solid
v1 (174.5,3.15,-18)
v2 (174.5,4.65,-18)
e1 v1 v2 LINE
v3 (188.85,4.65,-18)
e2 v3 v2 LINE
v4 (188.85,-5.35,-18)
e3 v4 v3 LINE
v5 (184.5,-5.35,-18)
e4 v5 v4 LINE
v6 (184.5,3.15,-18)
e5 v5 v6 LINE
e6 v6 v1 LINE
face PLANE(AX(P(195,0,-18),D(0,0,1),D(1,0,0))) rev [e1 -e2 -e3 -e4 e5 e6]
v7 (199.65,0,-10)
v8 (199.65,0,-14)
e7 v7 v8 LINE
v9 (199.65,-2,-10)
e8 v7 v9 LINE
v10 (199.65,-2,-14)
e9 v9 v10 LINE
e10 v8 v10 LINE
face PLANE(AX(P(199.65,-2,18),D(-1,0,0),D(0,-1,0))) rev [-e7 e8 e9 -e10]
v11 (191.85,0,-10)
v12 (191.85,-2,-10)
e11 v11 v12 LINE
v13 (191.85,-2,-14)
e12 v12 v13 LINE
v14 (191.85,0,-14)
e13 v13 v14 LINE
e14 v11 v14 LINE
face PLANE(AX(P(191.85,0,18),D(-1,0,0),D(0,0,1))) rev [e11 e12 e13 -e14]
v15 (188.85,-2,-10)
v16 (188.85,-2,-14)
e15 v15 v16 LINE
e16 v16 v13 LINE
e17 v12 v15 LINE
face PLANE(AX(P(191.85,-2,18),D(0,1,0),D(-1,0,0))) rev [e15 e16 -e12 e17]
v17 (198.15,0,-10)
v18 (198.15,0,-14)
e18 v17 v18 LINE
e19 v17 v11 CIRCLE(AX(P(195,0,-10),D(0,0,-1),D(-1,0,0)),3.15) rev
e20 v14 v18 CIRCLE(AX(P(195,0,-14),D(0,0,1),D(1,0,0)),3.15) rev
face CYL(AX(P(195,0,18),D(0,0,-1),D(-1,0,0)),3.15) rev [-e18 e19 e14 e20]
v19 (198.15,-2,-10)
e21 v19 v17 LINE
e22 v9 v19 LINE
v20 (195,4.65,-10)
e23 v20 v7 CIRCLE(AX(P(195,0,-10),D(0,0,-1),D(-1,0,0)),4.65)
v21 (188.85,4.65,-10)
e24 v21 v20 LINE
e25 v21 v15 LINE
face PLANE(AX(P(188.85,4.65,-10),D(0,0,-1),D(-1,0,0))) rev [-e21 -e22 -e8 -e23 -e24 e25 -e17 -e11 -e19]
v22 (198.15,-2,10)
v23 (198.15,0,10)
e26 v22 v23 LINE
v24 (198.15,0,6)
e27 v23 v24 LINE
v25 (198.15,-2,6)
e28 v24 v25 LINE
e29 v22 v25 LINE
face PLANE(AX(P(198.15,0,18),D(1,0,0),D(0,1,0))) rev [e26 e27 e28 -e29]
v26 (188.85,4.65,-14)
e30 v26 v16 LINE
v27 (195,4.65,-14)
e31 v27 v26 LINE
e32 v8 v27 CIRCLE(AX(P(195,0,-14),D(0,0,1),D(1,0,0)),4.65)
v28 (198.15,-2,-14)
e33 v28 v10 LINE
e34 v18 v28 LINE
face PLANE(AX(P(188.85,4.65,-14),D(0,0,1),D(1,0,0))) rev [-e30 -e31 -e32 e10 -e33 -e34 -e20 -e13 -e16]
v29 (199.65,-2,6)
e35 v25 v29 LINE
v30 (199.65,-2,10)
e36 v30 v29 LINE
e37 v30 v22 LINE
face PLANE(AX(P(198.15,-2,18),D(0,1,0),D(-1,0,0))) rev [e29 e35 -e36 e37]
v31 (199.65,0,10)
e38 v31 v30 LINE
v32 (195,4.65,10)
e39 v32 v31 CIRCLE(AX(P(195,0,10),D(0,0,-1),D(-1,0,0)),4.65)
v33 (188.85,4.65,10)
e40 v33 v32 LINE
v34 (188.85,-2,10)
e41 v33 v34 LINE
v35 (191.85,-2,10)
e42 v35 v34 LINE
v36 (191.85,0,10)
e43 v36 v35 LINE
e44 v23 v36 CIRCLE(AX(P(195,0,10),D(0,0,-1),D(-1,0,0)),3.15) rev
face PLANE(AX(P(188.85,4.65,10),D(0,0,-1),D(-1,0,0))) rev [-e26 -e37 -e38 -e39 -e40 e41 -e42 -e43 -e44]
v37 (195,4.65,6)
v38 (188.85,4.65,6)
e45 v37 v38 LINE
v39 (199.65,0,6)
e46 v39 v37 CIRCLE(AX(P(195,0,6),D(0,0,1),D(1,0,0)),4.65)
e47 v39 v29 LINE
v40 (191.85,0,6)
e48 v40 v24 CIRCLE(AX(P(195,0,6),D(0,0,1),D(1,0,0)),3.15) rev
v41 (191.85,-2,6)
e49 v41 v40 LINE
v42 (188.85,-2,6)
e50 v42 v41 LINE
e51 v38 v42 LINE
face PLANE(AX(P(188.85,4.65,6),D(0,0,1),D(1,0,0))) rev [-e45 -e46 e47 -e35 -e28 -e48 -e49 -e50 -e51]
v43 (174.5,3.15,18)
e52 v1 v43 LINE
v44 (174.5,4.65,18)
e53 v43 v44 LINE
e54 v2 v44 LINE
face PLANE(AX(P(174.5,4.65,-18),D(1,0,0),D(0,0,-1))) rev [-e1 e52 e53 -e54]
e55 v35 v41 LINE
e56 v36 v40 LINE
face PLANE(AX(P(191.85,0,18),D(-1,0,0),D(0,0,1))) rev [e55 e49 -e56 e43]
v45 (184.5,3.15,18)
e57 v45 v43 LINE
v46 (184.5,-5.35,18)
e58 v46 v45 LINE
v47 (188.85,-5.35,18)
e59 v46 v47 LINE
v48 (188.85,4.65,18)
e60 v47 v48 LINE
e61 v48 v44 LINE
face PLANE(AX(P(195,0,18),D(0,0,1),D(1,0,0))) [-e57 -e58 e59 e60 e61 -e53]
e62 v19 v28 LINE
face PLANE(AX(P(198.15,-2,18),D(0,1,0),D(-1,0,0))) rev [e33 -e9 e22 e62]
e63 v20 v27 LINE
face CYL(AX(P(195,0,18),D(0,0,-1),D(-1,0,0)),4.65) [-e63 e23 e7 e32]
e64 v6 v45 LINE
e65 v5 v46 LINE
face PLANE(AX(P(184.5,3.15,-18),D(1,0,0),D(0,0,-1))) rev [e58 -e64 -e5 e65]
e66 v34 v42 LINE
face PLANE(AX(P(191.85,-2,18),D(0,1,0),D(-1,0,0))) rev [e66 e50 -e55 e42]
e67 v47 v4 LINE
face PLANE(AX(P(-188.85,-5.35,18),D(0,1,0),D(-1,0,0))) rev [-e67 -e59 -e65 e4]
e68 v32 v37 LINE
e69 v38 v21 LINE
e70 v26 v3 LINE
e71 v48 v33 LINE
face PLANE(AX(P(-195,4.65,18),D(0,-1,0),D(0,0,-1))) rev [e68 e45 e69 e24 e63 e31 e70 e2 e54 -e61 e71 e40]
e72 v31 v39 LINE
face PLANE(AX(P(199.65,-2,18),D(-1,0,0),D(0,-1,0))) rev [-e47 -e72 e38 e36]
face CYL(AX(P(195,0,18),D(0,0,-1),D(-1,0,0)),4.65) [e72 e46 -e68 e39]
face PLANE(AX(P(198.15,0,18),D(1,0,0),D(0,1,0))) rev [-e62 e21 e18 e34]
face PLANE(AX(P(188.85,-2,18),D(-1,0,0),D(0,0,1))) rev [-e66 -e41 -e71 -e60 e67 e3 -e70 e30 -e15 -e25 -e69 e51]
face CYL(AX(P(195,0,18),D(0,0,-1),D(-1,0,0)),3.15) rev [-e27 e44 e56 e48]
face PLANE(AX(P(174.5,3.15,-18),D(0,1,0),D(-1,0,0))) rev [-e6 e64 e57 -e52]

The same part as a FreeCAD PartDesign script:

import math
import FreeCAD as App
import Part
import Sketcher

V = App.Vector
Q = App.Units.Quantity

doc = App.newDocument("Part")
body = doc.addObject("PartDesign::Body", "Body")

sketch1 = doc.addObject("Sketcher::SketchObject", "Sketch")
body.addObject(sketch1)
sketch1.AttachmentSupport = (doc.XY_Plane, [""])
sketch1.MapMode = "FlatFace"
sketch1.addGeometry([
    Part.LineSegment(V(-198.15, -2, 0), V(-198.15, 0, 0)),
    Part.ArcOfCircle(Part.Circle(V(-195, 0, 0), V(0, 0, 1), 3.15), math.radians(0), math.radians(180)),
    Part.LineSegment(V(-191.85, 0, 0), V(-191.85, -2, 0)),
    Part.LineSegment(V(-191.85, -2, 0), V(-188.85, -2, 0)),
    Part.LineSegment(V(-188.85, -2, 0), V(-188.85, -5.35, 0)),
    Part.LineSegment(V(-188.85, -5.35, 0), V(188.85, -5.35, 0)),
    Part.LineSegment(V(188.85, -5.35, 0), V(188.85, -2, 0)),
    Part.LineSegment(V(188.85, -2, 0), V(191.85, -2, 0)),
    Part.LineSegment(V(191.85, -2, 0), V(191.85, 0, 0)),
    Part.ArcOfCircle(Part.Circle(V(195, 0, 0), V(0, 0, 1), 3.15), math.radians(0), math.radians(180)),
    Part.LineSegment(V(198.15, 0, 0), V(198.15, -2, 0)),
    Part.LineSegment(V(198.15, -2, 0), V(199.65, -2, 0)),
    Part.LineSegment(V(199.65, -2, 0), V(199.65, 0, 0)),
    Part.ArcOfCircle(Part.Circle(V(195, 0, 0), V(0, 0, 1), 4.65), math.radians(0), math.radians(90)),
    Part.LineSegment(V(195, 4.65, 0), V(-195, 4.65, 0)),
    Part.ArcOfCircle(Part.Circle(V(-195, 0, 0), V(0, 0, 1), 4.65), math.radians(90), math.radians(180)),
    Part.LineSegment(V(-199.65, 0, 0), V(-199.65, -2, 0)),
    Part.LineSegment(V(-199.65, -2, 0), V(-198.15, -2, 0)),
], False)
sketch1.addConstraint([
    Sketcher.Constraint("Tangent", 0, 2, 1, 2),
    Sketcher.Constraint("Tangent", 1, 1, 2, 1),
    Sketcher.Constraint("Coincident", 2, 2, 3, 1),
    Sketcher.Constraint("Coincident", 3, 2, 4, 1),
    Sketcher.Constraint("Coincident", 4, 2, 5, 1),
    Sketcher.Constraint("Coincident", 5, 2, 6, 1),
    Sketcher.Constraint("Coincident", 6, 2, 7, 1),
    Sketcher.Constraint("Coincident", 7, 2, 8, 1),
    Sketcher.Constraint("Tangent", 8, 2, 9, 2),
    Sketcher.Constraint("Tangent", 9, 1, 10, 1),
    Sketcher.Constraint("Coincident", 10, 2, 11, 1),
    Sketcher.Constraint("Coincident", 11, 2, 12, 1),
    Sketcher.Constraint("Tangent", 12, 2, 13, 1),
    Sketcher.Constraint("Tangent", 13, 2, 14, 1),
    Sketcher.Constraint("Tangent", 14, 2, 15, 1),
    Sketcher.Constraint("Tangent", 15, 2, 16, 1),
    Sketcher.Constraint("Coincident", 16, 2, 17, 1),
    Sketcher.Constraint("Coincident", 17, 2, 0, 1),
    Sketcher.Constraint("Vertical", 0),
    Sketcher.Constraint("Vertical", 2),
    Sketcher.Constraint("Horizontal", 3),
    Sketcher.Constraint("Vertical", 4),
    Sketcher.Constraint("Horizontal", 5),
    Sketcher.Constraint("Vertical", 6),
    Sketcher.Constraint("Horizontal", 7),
    Sketcher.Constraint("Vertical", 8),
    Sketcher.Constraint("Vertical", 10),
    Sketcher.Constraint("Horizontal", 11),
    Sketcher.Constraint("Vertical", 12),
    Sketcher.Constraint("Horizontal", 14),
    Sketcher.Constraint("Vertical", 16),
    Sketcher.Constraint("Horizontal", 17),
    Sketcher.Constraint("Coincident", 13, 3, 9, 3),
    Sketcher.Constraint("Coincident", 15, 3, 1, 3),
    Sketcher.Constraint("Equal", 1, 9),
    Sketcher.Constraint("Equal", 13, 15),
    Sketcher.Constraint("Symmetric", 1, 3, 9, 3, -1, 1),
    Sketcher.Constraint("Symmetric", 3, 2, 6, 2, -2),
    Sketcher.Constraint("Horizontal", 7, 2, 10, 2),
    Sketcher.Constraint("Horizontal", 11, 2, 16, 2),
    Sketcher.Constraint("DistanceX", 3, 1, 3, 2, Q("3 mm")),
    Sketcher.Constraint("DistanceX", 14, 2, 14, 1, Q("390 mm")),
    Sketcher.Constraint("DistanceY", 0, 1, 0, 2, Q("2 mm")),
    Sketcher.Constraint("Radius", 1, Q("3.15 mm")),
    Sketcher.Constraint("Radius", 13, Q("4.65 mm")),
    Sketcher.Constraint("DistanceY", 4, 2, 4, 1, Q("3.35 mm")),
])
pad1 = doc.addObject("PartDesign::Pad", "Pad")
body.addObject(pad1)
pad1.Profile = sketch1
pad1.Length = 36
pad1.Midplane = True

sketch2 = doc.addObject("Sketcher::SketchObject", "Sketch001")
body.addObject(sketch2)
sketch2.AttachmentSupport = (doc.XZ_Plane, [""])
sketch2.MapMode = "FlatFace"
sketch2.AttachmentOffset = App.Placement(V(0, 0, 5.35), App.Rotation())
sketch2.addGeometry([
    Part.LineSegment(V(-199.65, 18, 0), V(-199.65, 14, 0)),
    Part.LineSegment(V(-199.65, 14, 0), V(-188.85, 14, 0)),
    Part.LineSegment(V(-188.85, 14, 0), V(-188.85, 18, 0)),
    Part.LineSegment(V(-188.85, 18, 0), V(-199.65, 18, 0)),
    Part.LineSegment(V(-199.65, 10, 0), V(-199.65, -6, 0)),
    Part.LineSegment(V(-199.65, -6, 0), V(-188.85, -6, 0)),
    Part.LineSegment(V(-188.85, -6, 0), V(-188.85, 10, 0)),
    Part.LineSegment(V(-188.85, 10, 0), V(-199.65, 10, 0)),
    Part.LineSegment(V(-199.65, -10, 0), V(-199.65, -18, 0)),
    Part.LineSegment(V(-199.65, -18, 0), V(-188.85, -18, 0)),
    Part.LineSegment(V(-188.85, -18, 0), V(-188.85, -10, 0)),
    Part.LineSegment(V(-188.85, -10, 0), V(-199.65, -10, 0)),
    Part.LineSegment(V(188.85, 18, 0), V(188.85, 10, 0)),
    Part.LineSegment(V(188.85, 10, 0), V(199.65, 10, 0)),
    Part.LineSegment(V(199.65, 10, 0), V(199.65, 18, 0)),
    Part.LineSegment(V(199.65, 18, 0), V(188.85, 18, 0)),
    Part.LineSegment(V(188.85, 6, 0), V(188.85, -10, 0)),
    Part.LineSegment(V(188.85, -10, 0), V(199.65, -10, 0)),
    Part.LineSegment(V(199.65, -10, 0), V(199.65, 6, 0)),
    Part.LineSegment(V(199.65, 6, 0), V(188.85, 6, 0)),
    Part.LineSegment(V(188.85, -14, 0), V(188.85, -18, 0)),
    Part.LineSegment(V(188.85, -18, 0), V(199.65, -18, 0)),
    Part.LineSegment(V(199.65, -18, 0), V(199.65, -14, 0)),
    Part.LineSegment(V(199.65, -14, 0), V(188.85, -14, 0)),
], False)
sketch2.addConstraint([
    Sketcher.Constraint("Coincident", 0, 2, 1, 1),
    Sketcher.Constraint("Coincident", 1, 2, 2, 1),
    Sketcher.Constraint("Coincident", 2, 2, 3, 1),
    Sketcher.Constraint("Coincident", 3, 2, 0, 1),
    Sketcher.Constraint("Coincident", 4, 2, 5, 1),
    Sketcher.Constraint("Coincident", 5, 2, 6, 1),
    Sketcher.Constraint("Coincident", 6, 2, 7, 1),
    Sketcher.Constraint("Coincident", 7, 2, 4, 1),
    Sketcher.Constraint("Coincident", 8, 2, 9, 1),
    Sketcher.Constraint("Coincident", 9, 2, 10, 1),
    Sketcher.Constraint("Coincident", 10, 2, 11, 1),
    Sketcher.Constraint("Coincident", 11, 2, 8, 1),
    Sketcher.Constraint("Coincident", 12, 2, 13, 1),
    Sketcher.Constraint("Coincident", 13, 2, 14, 1),
    Sketcher.Constraint("Coincident", 14, 2, 15, 1),
    Sketcher.Constraint("Coincident", 15, 2, 12, 1),
    Sketcher.Constraint("Coincident", 16, 2, 17, 1),
    Sketcher.Constraint("Coincident", 17, 2, 18, 1),
    Sketcher.Constraint("Coincident", 18, 2, 19, 1),
    Sketcher.Constraint("Coincident", 19, 2, 16, 1),
    Sketcher.Constraint("Coincident", 20, 2, 21, 1),
    Sketcher.Constraint("Coincident", 21, 2, 22, 1),
    Sketcher.Constraint("Coincident", 22, 2, 23, 1),
    Sketcher.Constraint("Coincident", 23, 2, 20, 1),
    Sketcher.Constraint("Vertical", 0),
    Sketcher.Constraint("Horizontal", 1),
    Sketcher.Constraint("Vertical", 2),
    Sketcher.Constraint("Horizontal", 3),
    Sketcher.Constraint("Vertical", 4),
    Sketcher.Constraint("Horizontal", 5),
    Sketcher.Constraint("Vertical", 6),
    Sketcher.Constraint("Horizontal", 7),
    Sketcher.Constraint("Vertical", 8),
    Sketcher.Constraint("Horizontal", 9),
    Sketcher.Constraint("Vertical", 10),
    Sketcher.Constraint("Horizontal", 11),
    Sketcher.Constraint("Vertical", 12),
    Sketcher.Constraint("Horizontal", 13),
    Sketcher.Constraint("Vertical", 14),
    Sketcher.Constraint("Horizontal", 15),
    Sketcher.Constraint("Vertical", 16),
    Sketcher.Constraint("Horizontal", 17),
    Sketcher.Constraint("Vertical", 18),
    Sketcher.Constraint("Horizontal", 19),
    Sketcher.Constraint("Vertical", 20),
    Sketcher.Constraint("Horizontal", 21),
    Sketcher.Constraint("Vertical", 22),
    Sketcher.Constraint("Horizontal", 23),
    Sketcher.Constraint("Symmetric", 10, 2, 12, 2, -1, 1),
    Sketcher.Constraint("Symmetric", 8, 2, 14, 2, -1, 1),
    Sketcher.Constraint("Symmetric", 6, 2, 16, 2, -1, 1),
    Sketcher.Constraint("Symmetric", 4, 2, 18, 2, -1, 1),
    Sketcher.Constraint("Symmetric", 2, 2, 20, 2, -1, 1),
    Sketcher.Constraint("Symmetric", 0, 2, 22, 2, -1, 1),
    Sketcher.Constraint("Symmetric", 6, 2, 12, 2, -2),
    Sketcher.Constraint("Symmetric", 3, 2, 14, 2, -2),
    Sketcher.Constraint("Vertical", 3, 2, 4, 2),
    Sketcher.Constraint("Vertical", 2, 2, 5, 2),
    Sketcher.Constraint("DistanceY", 0, 2, 0, 1, Q("4 mm")),
    Sketcher.Constraint("DistanceY", 4, 2, 4, 1, Q("16 mm")),
    Sketcher.Constraint("DistanceY", 8, 2, 8, 1, Q("8 mm")),
    Sketcher.Constraint("DistanceX", 1, 1, 1, 2, Q("10.8 mm")),
    Sketcher.Constraint("DistanceY", -1, 1, 0, 2, Q("14 mm")),
    Sketcher.Constraint("DistanceX", 6, 2, 12, 2, Q("377.7 mm")),
])
pocket1 = doc.addObject("PartDesign::Pocket", "Pocket")
body.addObject(pocket1)
pocket1.Profile = sketch2
pocket1.Type = "ThroughAll"

sketch3 = doc.addObject("Sketcher::SketchObject", "Sketch002")
body.addObject(sketch3)
sketch3.AttachmentSupport = (doc.XY_Plane, [""])
sketch3.MapMode = "FlatFace"
sketch3.AttachmentOffset = App.Placement(V(0, 0, 18), App.Rotation())
sketch3.addGeometry([
    Part.LineSegment(V(174.5, 3.15, 0), V(174.5, 4.65, 0)),
    Part.LineSegment(V(174.5, 4.65, 0), V(-199.65, 4.65, 0)),
    Part.LineSegment(V(-199.65, 4.65, 0), V(-199.65, -5.35, 0)),
    Part.LineSegment(V(-199.65, -5.35, 0), V(184.5, -5.35, 0)),
    Part.LineSegment(V(184.5, -5.35, 0), V(184.5, 3.15, 0)),
    Part.LineSegment(V(184.5, 3.15, 0), V(174.5, 3.15, 0)),
], False)
sketch3.addConstraint([
    Sketcher.Constraint("Coincident", 0, 2, 1, 1),
    Sketcher.Constraint("Coincident", 1, 2, 2, 1),
    Sketcher.Constraint("Coincident", 2, 2, 3, 1),
    Sketcher.Constraint("Coincident", 3, 2, 4, 1),
    Sketcher.Constraint("Coincident", 4, 2, 5, 1),
    Sketcher.Constraint("Coincident", 5, 2, 0, 1),
    Sketcher.Constraint("Vertical", 0),
    Sketcher.Constraint("Horizontal", 1),
    Sketcher.Constraint("Vertical", 2),
    Sketcher.Constraint("Horizontal", 3),
    Sketcher.Constraint("Vertical", 4),
    Sketcher.Constraint("Horizontal", 5),
    Sketcher.Constraint("Equal", 5, 2),
    Sketcher.Constraint("DistanceX", 5, 2, 5, 1, Q("10 mm")),
    Sketcher.Constraint("DistanceY", 0, 1, 0, 2, Q("1.5 mm")),
    Sketcher.Constraint("DistanceX", 1, 2, 1, 1, Q("374.15 mm")),
    Sketcher.Constraint("DistanceX", -1, 1, 0, 2, Q("174.5 mm")),
    Sketcher.Constraint("DistanceY", -1, 1, 0, 2, Q("4.65 mm")),
])
pocket2 = doc.addObject("PartDesign::Pocket", "Pocket001")
body.addObject(pocket2)
pocket2.Profile = sketch3
pocket2.Type = "ThroughAll"

doc.recompute()
